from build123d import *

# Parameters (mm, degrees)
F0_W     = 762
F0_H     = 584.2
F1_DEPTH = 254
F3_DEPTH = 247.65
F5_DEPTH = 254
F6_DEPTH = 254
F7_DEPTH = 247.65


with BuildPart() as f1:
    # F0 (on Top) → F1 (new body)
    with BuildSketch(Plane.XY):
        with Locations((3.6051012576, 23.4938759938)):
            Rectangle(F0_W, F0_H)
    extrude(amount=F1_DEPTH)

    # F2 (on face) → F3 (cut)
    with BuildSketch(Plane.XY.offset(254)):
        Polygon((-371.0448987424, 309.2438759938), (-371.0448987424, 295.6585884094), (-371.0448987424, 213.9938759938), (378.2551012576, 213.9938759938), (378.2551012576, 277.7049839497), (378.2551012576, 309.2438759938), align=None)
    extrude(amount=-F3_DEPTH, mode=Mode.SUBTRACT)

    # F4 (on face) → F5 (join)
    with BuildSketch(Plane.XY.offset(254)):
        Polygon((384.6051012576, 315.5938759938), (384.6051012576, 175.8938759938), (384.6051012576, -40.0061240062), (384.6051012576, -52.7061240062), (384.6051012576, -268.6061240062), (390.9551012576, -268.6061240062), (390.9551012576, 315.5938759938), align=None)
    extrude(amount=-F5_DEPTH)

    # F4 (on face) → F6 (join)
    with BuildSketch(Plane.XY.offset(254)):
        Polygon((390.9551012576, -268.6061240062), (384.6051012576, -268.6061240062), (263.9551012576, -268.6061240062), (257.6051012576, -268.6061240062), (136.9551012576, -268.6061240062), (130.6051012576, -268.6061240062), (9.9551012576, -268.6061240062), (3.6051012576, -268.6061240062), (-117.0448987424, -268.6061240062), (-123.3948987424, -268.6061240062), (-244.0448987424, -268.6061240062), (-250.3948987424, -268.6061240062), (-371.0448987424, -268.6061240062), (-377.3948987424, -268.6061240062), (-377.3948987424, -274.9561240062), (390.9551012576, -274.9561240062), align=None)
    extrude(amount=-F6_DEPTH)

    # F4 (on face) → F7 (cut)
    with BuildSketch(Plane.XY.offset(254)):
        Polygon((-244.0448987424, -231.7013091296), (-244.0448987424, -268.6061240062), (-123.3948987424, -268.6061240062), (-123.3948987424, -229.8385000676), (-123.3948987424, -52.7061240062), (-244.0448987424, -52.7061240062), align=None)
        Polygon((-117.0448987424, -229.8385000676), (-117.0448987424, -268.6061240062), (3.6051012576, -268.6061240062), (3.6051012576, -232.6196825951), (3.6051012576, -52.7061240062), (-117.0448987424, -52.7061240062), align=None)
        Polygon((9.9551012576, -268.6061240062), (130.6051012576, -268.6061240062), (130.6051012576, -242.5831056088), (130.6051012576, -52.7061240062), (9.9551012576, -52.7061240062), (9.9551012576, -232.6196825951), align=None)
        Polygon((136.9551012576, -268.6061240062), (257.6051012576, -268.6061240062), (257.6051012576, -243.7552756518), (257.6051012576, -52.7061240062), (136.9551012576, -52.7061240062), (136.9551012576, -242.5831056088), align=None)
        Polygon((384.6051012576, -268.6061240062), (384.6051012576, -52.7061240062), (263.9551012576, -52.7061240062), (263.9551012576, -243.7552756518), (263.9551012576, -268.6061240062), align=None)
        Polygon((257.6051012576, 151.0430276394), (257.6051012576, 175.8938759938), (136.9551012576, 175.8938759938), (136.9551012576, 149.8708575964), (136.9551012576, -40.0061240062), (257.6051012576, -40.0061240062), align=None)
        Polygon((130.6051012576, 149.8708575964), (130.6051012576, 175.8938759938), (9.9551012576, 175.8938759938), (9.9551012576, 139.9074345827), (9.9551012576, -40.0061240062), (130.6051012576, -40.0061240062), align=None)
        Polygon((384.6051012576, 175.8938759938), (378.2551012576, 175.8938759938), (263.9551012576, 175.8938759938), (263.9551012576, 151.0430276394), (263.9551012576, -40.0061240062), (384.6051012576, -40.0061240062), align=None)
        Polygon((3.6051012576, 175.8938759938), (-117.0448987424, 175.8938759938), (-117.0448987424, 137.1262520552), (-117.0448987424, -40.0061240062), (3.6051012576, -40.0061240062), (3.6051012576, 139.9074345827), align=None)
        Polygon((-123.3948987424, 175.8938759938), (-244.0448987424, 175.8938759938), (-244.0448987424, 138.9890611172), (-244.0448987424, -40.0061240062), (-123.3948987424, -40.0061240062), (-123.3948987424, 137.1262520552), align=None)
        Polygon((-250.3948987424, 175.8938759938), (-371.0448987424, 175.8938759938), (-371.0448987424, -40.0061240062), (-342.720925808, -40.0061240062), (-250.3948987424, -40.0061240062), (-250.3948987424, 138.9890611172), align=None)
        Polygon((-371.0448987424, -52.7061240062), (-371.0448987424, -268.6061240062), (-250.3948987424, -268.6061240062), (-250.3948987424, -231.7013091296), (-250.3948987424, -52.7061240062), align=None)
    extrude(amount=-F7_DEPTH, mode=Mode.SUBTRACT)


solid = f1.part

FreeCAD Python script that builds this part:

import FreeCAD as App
import Part
import Sketcher
Q = App.Units.Quantity

doc = App.newDocument("Part")
params = doc.addObject("Spreadsheet::Sheet", "Params")
for row, (alias, value) in enumerate([
    ("sketch1_width", "30 in"),
    ("sketch1_height", "23 in"),
    ("pad1_length", "10 in"),
    ("sketch2_width", "29.5 in"),
    ("sketch2_height", "3.75 in"),
    ("pocket1_length", "9.75 in"),
    ("sketch3_height", "23 in"),
    ("sketch3_width", "0.25 in"),
    ("pad2_length", "10 in"),
    ("sketch4_width", "30.25 in"),
    ("sketch4_height", "0.25 in"),
    ("pad3_length", "10 in"),
    ("sketch5_height", "8.5 in"),
    ("sketch5_width", "4.75 in"),
    ("pocket2_length", "9.75 in"),
], start=1):
    params.set(f"A{row}", alias)
    params.set(f"B{row}", "=" + value)
    params.setAlias(f"B{row}", alias)

body = doc.addObject("PartDesign::Body", "Body")

# Sketch on XY plane
sketch1 = doc.addObject("Sketcher::SketchObject", "Sketch")
body.addObject(sketch1)
sketch1.AttachmentSupport = (doc.XY_Plane, [""])
sketch1.MapMode = "FlatFace"
sketch1.addGeometry([
    Part.LineSegment(App.Vector(-377, 316, 0), App.Vector(-377, -269, 0)),
    Part.LineSegment(App.Vector(-377, -269, 0), App.Vector(385, -269, 0)),
    Part.LineSegment(App.Vector(385, -269, 0), App.Vector(385, 316, 0)),
    Part.LineSegment(App.Vector(385, 316, 0), App.Vector(-377, 316, 0)),
], False)
sketch1.addConstraint([
    Sketcher.Constraint("Coincident", 0, 2, 1, 1),
    Sketcher.Constraint("Coincident", 1, 2, 2, 1),
    Sketcher.Constraint("Coincident", 2, 2, 3, 1),
    Sketcher.Constraint("Coincident", 3, 2, 0, 1),
    Sketcher.Constraint("Vertical", 0),
    Sketcher.Constraint("Horizontal", 1),
    Sketcher.Constraint("Vertical", 2),
    Sketcher.Constraint("Horizontal", 3),
    Sketcher.Constraint("DistanceX", 1, 1, 1, 2, Q("30 in")),
    Sketcher.Constraint("DistanceY", 0, 2, 0, 1, Q("23 in")),
    Sketcher.Constraint("DistanceX", 0, 2, -1, 1, 377.394899),
    Sketcher.Constraint("DistanceY", 0, 2, -1, 1, 268.606124),
])
sketch1.setExpression("Constraints[8]", "Params.sketch1_width")
sketch1.setExpression("Constraints[9]", "Params.sketch1_height")
pad1 = doc.addObject("PartDesign::Pad", "Pad")
body.addObject(pad1)
pad1.Profile = sketch1
pad1.setExpression("Length", "Params.pad1_length")

# Sketch on XY plane
sketch2 = doc.addObject("Sketcher::SketchObject", "Sketch001")
body.addObject(sketch2)
sketch2.AttachmentSupport = (doc.XY_Plane, [""])
sketch2.MapMode = "FlatFace"
sketch2.AttachmentOffset = App.Placement(App.Vector(0, 0, 10 * 25.4), App.Rotation())
sketch2.addGeometry([
    Part.LineSegment(App.Vector(-371, 309, 0), App.Vector(-371, 214, 0)),
    Part.LineSegment(App.Vector(-371, 214, 0), App.Vector(378, 214, 0)),
    Part.LineSegment(App.Vector(378, 214, 0), App.Vector(378, 309, 0)),
    Part.LineSegment(App.Vector(378, 309, 0), App.Vector(-371, 309, 0)),
], False)
sketch2.addConstraint([
    Sketcher.Constraint("Coincident", 0, 2, 1, 1),
    Sketcher.Constraint("Coincident", 1, 2, 2, 1),
    Sketcher.Constraint("Coincident", 2, 2, 3, 1),
    Sketcher.Constraint("Coincident", 3, 2, 0, 1),
    Sketcher.Constraint("Vertical", 0),
    Sketcher.Constraint("Horizontal", 1),
    Sketcher.Constraint("Vertical", 2),
    Sketcher.Constraint("Horizontal", 3),
    Sketcher.Constraint("DistanceX", 1, 1, 1, 2, Q("29.5 in")),
    Sketcher.Constraint("DistanceY", 0, 2, 0, 1, Q("3.75 in")),
    Sketcher.Constraint("DistanceX", 0, 2, -1, 1, 371.044899),
    Sketcher.Constraint("DistanceY", -1, 1, 0, 2, 213.993876),
])
sketch2.setExpression("Constraints[8]", "Params.sketch2_width")
sketch2.setExpression("Constraints[9]", "Params.sketch2_height")
pocket1 = doc.addObject("PartDesign::Pocket", "Pocket")
body.addObject(pocket1)
pocket1.Profile = sketch2
pocket1.setExpression("Length", "Params.pocket1_length")

# Sketch on XY plane
sketch3 = doc.addObject("Sketcher::SketchObject", "Sketch002")
body.addObject(sketch3)
sketch3.AttachmentSupport = (doc.XY_Plane, [""])
sketch3.MapMode = "FlatFace"
sketch3.AttachmentOffset = App.Placement(App.Vector(0, 0, 10 * 25.4), App.Rotation())
sketch3.addGeometry([
    Part.LineSegment(App.Vector(385, 316, 0), App.Vector(385, -269, 0)),
    Part.LineSegment(App.Vector(385, -269, 0), App.Vector(391, -269, 0)),
    Part.LineSegment(App.Vector(391, -269, 0), App.Vector(391, 316, 0)),
    Part.LineSegment(App.Vector(391, 316, 0), App.Vector(385, 316, 0)),
], False)
sketch3.addConstraint([
    Sketcher.Constraint("Coincident", 0, 2, 1, 1),
    Sketcher.Constraint("Coincident", 1, 2, 2, 1),
    Sketcher.Constraint("Coincident", 2, 2, 3, 1),
    Sketcher.Constraint("Coincident", 3, 2, 0, 1),
    Sketcher.Constraint("Vertical", 0),
    Sketcher.Constraint("Horizontal", 1),
    Sketcher.Constraint("Vertical", 2),
    Sketcher.Constraint("Horizontal", 3),
    Sketcher.Constraint("DistanceY", 0, 2, 0, 1, Q("23 in")),
    Sketcher.Constraint("DistanceX", 1, 1, 1, 2, Q("0.25 in")),
    Sketcher.Constraint("DistanceX", -1, 1, 0, 2, 384.605101),
    Sketcher.Constraint("DistanceY", 0, 2, -1, 1, 268.606124),
])
sketch3.setExpression("Constraints[8]", "Params.sketch3_height")
sketch3.setExpression("Constraints[9]", "Params.sketch3_width")
pad2 = doc.addObject("PartDesign::Pad", "Pad001")
body.addObject(pad2)
pad2.Profile = sketch3
pad2.setExpression("Length", "Params.pad2_length")
pad2.Reversed = True

# Sketch on XY plane
sketch4 = doc.addObject("Sketcher::SketchObject", "Sketch003")
body.addObject(sketch4)
sketch4.AttachmentSupport = (doc.XY_Plane, [""])
sketch4.MapMode = "FlatFace"
sketch4.AttachmentOffset = App.Placement(App.Vector(0, 0, 10 * 25.4), App.Rotation())
sketch4.addGeometry([
    Part.LineSegment(App.Vector(391, -269, 0), App.Vector(-377, -269, 0)),
    Part.LineSegment(App.Vector(-377, -269, 0), App.Vector(-377, -275, 0)),
    Part.LineSegment(App.Vector(-377, -275, 0), App.Vector(391, -275, 0)),
    Part.LineSegment(App.Vector(391, -275, 0), App.Vector(391, -269, 0)),
], False)
sketch4.addConstraint([
    Sketcher.Constraint("Coincident", 0, 2, 1, 1),
    Sketcher.Constraint("Coincident", 1, 2, 2, 1),
    Sketcher.Constraint("Coincident", 2, 2, 3, 1),
    Sketcher.Constraint("Coincident", 3, 2, 0, 1),
    Sketcher.Constraint("Horizontal", 0),
    Sketcher.Constraint("Vertical", 1),
    Sketcher.Constraint("Horizontal", 2),
    Sketcher.Constraint("Vertical", 3),
    Sketcher.Constraint("DistanceX", 0, 2, 0, 1, Q("30.25 in")),
    Sketcher.Constraint("DistanceY", 1, 2, 1, 1, Q("0.25 in")),
    Sketcher.Constraint("DistanceX", 0, 2, -1, 1, 377.394899),
    Sketcher.Constraint("DistanceY", 0, 2, -1, 1, 268.606124),
])
sketch4.setExpression("Constraints[8]", "Params.sketch4_width")
sketch4.setExpression("Constraints[9]", "Params.sketch4_height")
pad3 = doc.addObject("PartDesign::Pad", "Pad002")
body.addObject(pad3)
pad3.Profile = sketch4
pad3.setExpression("Length", "Params.pad3_length")
pad3.Reversed = True

# Sketch on XY plane
sketch5 = doc.addObject("Sketcher::SketchObject", "Sketch004")
body.addObject(sketch5)
sketch5.AttachmentSupport = (doc.XY_Plane, [""])
sketch5.MapMode = "FlatFace"
sketch5.AttachmentOffset = App.Placement(App.Vector(0, 0, 10 * 25.4), App.Rotation())
sketch5.addGeometry([
    Part.LineSegment(App.Vector(-244, -269, 0), App.Vector(-123, -269, 0)),  # 0
    Part.LineSegment(App.Vector(-123, -269, 0), App.Vector(-123, -53, 0)),  # 1
    Part.LineSegment(App.Vector(-123, -53, 0), App.Vector(-244, -53, 0)),  # 2
    Part.LineSegment(App.Vector(-244, -53, 0), App.Vector(-244, -269, 0)),  # 3
    Part.LineSegment(App.Vector(-117, -269, 0), App.Vector(4, -269, 0)),  # 4
    Part.LineSegment(App.Vector(4, -269, 0), App.Vector(4, -53, 0)),  # 5
    Part.LineSegment(App.Vector(4, -53, 0), App.Vector(-117, -53, 0)),  # 6
    Part.LineSegment(App.Vector(-117, -53, 0), App.Vector(-117, -269, 0)),  # 7
    Part.LineSegment(App.Vector(10, -269, 0), App.Vector(131, -269, 0)),  # 8
    Part.LineSegment(App.Vector(131, -269, 0), App.Vector(131, -53, 0)),  # 9
    Part.LineSegment(App.Vector(131, -53, 0), App.Vector(10, -53, 0)),  # 10
    Part.LineSegment(App.Vector(10, -53, 0), App.Vector(10, -269, 0)),  # 11
    Part.LineSegment(App.Vector(137, -269, 0), App.Vector(258, -269, 0)),  # 12
    Part.LineSegment(App.Vector(258, -269, 0), App.Vector(258, -53, 0)),  # 13
    Part.LineSegment(App.Vector(258, -53, 0), App.Vector(137, -53, 0)),  # 14
    Part.LineSegment(App.Vector(137, -53, 0), App.Vector(137, -269, 0)),  # 15
    Part.LineSegment(App.Vector(385, -269, 0), App.Vector(385, -53, 0)),  # 16
    Part.LineSegment(App.Vector(385, -53, 0), App.Vector(264, -53, 0)),  # 17
    Part.LineSegment(App.Vector(264, -53, 0), App.Vector(264, -269, 0)),  # 18
    Part.LineSegment(App.Vector(264, -269, 0), App.Vector(385, -269, 0)),  # 19
    Part.LineSegment(App.Vector(258, 176, 0), App.Vector(137, 176, 0)),  # 20
    Part.LineSegment(App.Vector(137, 176, 0), App.Vector(137, -40, 0)),  # 21
    Part.LineSegment(App.Vector(137, -40, 0), App.Vector(258, -40, 0)),  # 22
    Part.LineSegment(App.Vector(258, -40, 0), App.Vector(258, 176, 0)),  # 23
    Part.LineSegment(App.Vector(131, 176, 0), App.Vector(10, 176, 0)),  # 24
    Part.LineSegment(App.Vector(10, 176, 0), App.Vector(10, -40, 0)),  # 25
    Part.LineSegment(App.Vector(10, -40, 0), App.Vector(131, -40, 0)),  # 26
    Part.LineSegment(App.Vector(131, -40, 0), App.Vector(131, 176, 0)),  # 27
    Part.LineSegment(App.Vector(385, 176, 0), App.Vector(264, 176, 0)),  # 28
    Part.LineSegment(App.Vector(264, 176, 0), App.Vector(264, -40, 0)),  # 29
    Part.LineSegment(App.Vector(264, -40, 0), App.Vector(385, -40, 0)),  # 30
    Part.LineSegment(App.Vector(385, -40, 0), App.Vector(385, 176, 0)),  # 31
    Part.LineSegment(App.Vector(4, 176, 0), App.Vector(-117, 176, 0)),  # 32
    Part.LineSegment(App.Vector(-117, 176, 0), App.Vector(-117, -40, 0)),  # 33
    Part.LineSegment(App.Vector(-117, -40, 0), App.Vector(4, -40, 0)),  # 34
    Part.LineSegment(App.Vector(4, -40, 0), App.Vector(4, 176, 0)),  # 35
    Part.LineSegment(App.Vector(-123, 176, 0), App.Vector(-244, 176, 0)),  # 36
    Part.LineSegment(App.Vector(-244, 176, 0), App.Vector(-244, -40, 0)),  # 37
    Part.LineSegment(App.Vector(-244, -40, 0), App.Vector(-123, -40, 0)),  # 38
    Part.LineSegment(App.Vector(-123, -40, 0), App.Vector(-123, 176, 0)),  # 39
    Part.LineSegment(App.Vector(-250, 176, 0), App.Vector(-371, 176, 0)),  # 40
    Part.LineSegment(App.Vector(-371, 176, 0), App.Vector(-371, -40, 0)),  # 41
    Part.LineSegment(App.Vector(-371, -40, 0), App.Vector(-250, -40, 0)),  # 42
    Part.LineSegment(App.Vector(-250, -40, 0), App.Vector(-250, 176, 0)),  # 43
    Part.LineSegment(App.Vector(-371, -53, 0), App.Vector(-371, -269, 0)),  # 44
    Part.LineSegment(App.Vector(-371, -269, 0), App.Vector(-250, -269, 0)),  # 45
    Part.LineSegment(App.Vector(-250, -269, 0), App.Vector(-250, -53, 0)),  # 46
    Part.LineSegment(App.Vector(-250, -53, 0), App.Vector(-371, -53, 0)),  # 47
], False)
sketch5.addConstraint([
    Sketcher.Constraint("Coincident", 0, 2, 1, 1),
    Sketcher.Constraint("Coincident", 1, 2, 2, 1),
    Sketcher.Constraint("Coincident", 2, 2, 3, 1),
    Sketcher.Constraint("Coincident", 3, 2, 0, 1),
    Sketcher.Constraint("Coincident", 4, 2, 5, 1),
    Sketcher.Constraint("Coincident", 5, 2, 6, 1),
    Sketcher.Constraint("Coincident", 6, 2, 7, 1),
    Sketcher.Constraint("Coincident", 7, 2, 4, 1),
    Sketcher.Constraint("Coincident", 8, 2, 9, 1),
    Sketcher.Constraint("Coincident", 9, 2, 10, 1),
    Sketcher.Constraint("Coincident", 10, 2, 11, 1),
    Sketcher.Constraint("Coincident", 11, 2, 8, 1),
    Sketcher.Constraint("Coincident", 12, 2, 13, 1),
    Sketcher.Constraint("Coincident", 13, 2, 14, 1),
    Sketcher.Constraint("Coincident", 14, 2, 15, 1),
    Sketcher.Constraint("Coincident", 15, 2, 12, 1),
    Sketcher.Constraint("Coincident", 16, 2, 17, 1),
    Sketcher.Constraint("Coincident", 17, 2, 18, 1),
    Sketcher.Constraint("Coincident", 18, 2, 19, 1),
    Sketcher.Constraint("Coincident", 19, 2, 16, 1),
    Sketcher.Constraint("Coincident", 20, 2, 21, 1),
    Sketcher.Constraint("Coincident", 21, 2, 22, 1),
    Sketcher.Constraint("Coincident", 22, 2, 23, 1),
    Sketcher.Constraint("Coincident", 23, 2, 20, 1),
    Sketcher.Constraint("Coincident", 24, 2, 25, 1),
    Sketcher.Constraint("Coincident", 25, 2, 26, 1),
    Sketcher.Constraint("Coincident", 26, 2, 27, 1),
    Sketcher.Constraint("Coincident", 27, 2, 24, 1),
    Sketcher.Constraint("Coincident", 28, 2, 29, 1),
    Sketcher.Constraint("Coincident", 29, 2, 30, 1),
    Sketcher.Constraint("Coincident", 30, 2, 31, 1),
    Sketcher.Constraint("Coincident", 31, 2, 28, 1),
    Sketcher.Constraint("Coincident", 32, 2, 33, 1),
    Sketcher.Constraint("Coincident", 33, 2, 34, 1),
    Sketcher.Constraint("Coincident", 34, 2, 35, 1),
    Sketcher.Constraint("Coincident", 35, 2, 32, 1),
    Sketcher.Constraint("Coincident", 36, 2, 37, 1),
    Sketcher.Constraint("Coincident", 37, 2, 38, 1),
    Sketcher.Constraint("Coincident", 38, 2, 39, 1),
    Sketcher.Constraint("Coincident", 39, 2, 36, 1),
    Sketcher.Constraint("Coincident", 40, 2, 41, 1),
    Sketcher.Constraint("Coincident", 41, 2, 42, 1),
    Sketcher.Constraint("Coincident", 42, 2, 43, 1),
    Sketcher.Constraint("Coincident", 43, 2, 40, 1),
    Sketcher.Constraint("Coincident", 44, 2, 45, 1),
    Sketcher.Constraint("Coincident", 45, 2, 46, 1),
    Sketcher.Constraint("Coincident", 46, 2, 47, 1),
    Sketcher.Constraint("Coincident", 47, 2, 44, 1),
    Sketcher.Constraint("Horizontal", 0),
    Sketcher.Constraint("Vertical", 1),
    Sketcher.Constraint("Horizontal", 2),
    Sketcher.Constraint("Vertical", 3),
    Sketcher.Constraint("Horizontal", 4),
    Sketcher.Constraint("Vertical", 5),
    Sketcher.Constraint("Horizontal", 6),
    Sketcher.Constraint("Vertical", 7),
    Sketcher.Constraint("Horizontal", 8),
    Sketcher.Constraint("Vertical", 9),
    Sketcher.Constraint("Horizontal", 10),
    Sketcher.Constraint("Vertical", 11),
    Sketcher.Constraint("Horizontal", 12),
    Sketcher.Constraint("Vertical", 13),
    Sketcher.Constraint("Horizontal", 14),
    Sketcher.Constraint("Vertical", 15),
    Sketcher.Constraint("Vertical", 16),
    Sketcher.Constraint("Horizontal", 17),
    Sketcher.Constraint("Vertical", 18),
    Sketcher.Constraint("Horizontal", 19),
    Sketcher.Constraint("Horizontal", 20),
    Sketcher.Constraint("Vertical", 21),
    Sketcher.Constraint("Horizontal", 22),
    Sketcher.Constraint("Vertical", 23),
    Sketcher.Constraint("Horizontal", 24),
    Sketcher.Constraint("Vertical", 25),
    Sketcher.Constraint("Horizontal", 26),
    Sketcher.Constraint("Vertical", 27),
    Sketcher.Constraint("Horizontal", 28),
    Sketcher.Constraint("Vertical", 29),
    Sketcher.Constraint("Horizontal", 30),
    Sketcher.Constraint("Vertical", 31),
    Sketcher.Constraint("Horizontal", 32),
    Sketcher.Constraint("Vertical", 33),
    Sketcher.Constraint("Horizontal", 34),
    Sketcher.Constraint("Vertical", 35),
    Sketcher.Constraint("Horizontal", 36),
    Sketcher.Constraint("Vertical", 37),
    Sketcher.Constraint("Horizontal", 38),
    Sketcher.Constraint("Vertical", 39),
    Sketcher.Constraint("Horizontal", 40),
    Sketcher.Constraint("Vertical", 41),
    Sketcher.Constraint("Horizontal", 42),
    Sketcher.Constraint("Vertical", 43),
    Sketcher.Constraint("Vertical", 44),
    Sketcher.Constraint("Horizontal", 45),
    Sketcher.Constraint("Vertical", 46),
    Sketcher.Constraint("Horizontal", 47),
    Sketcher.Constraint("Horizontal", 3, 2, 4, 2),
    Sketcher.Constraint("Horizontal", 2, 2, 5, 2),
    Sketcher.Constraint("Horizontal", 7, 2, 8, 2),
    Sketcher.Constraint("Horizontal", 6, 2, 9, 2),
    Sketcher.Constraint("Horizontal", 11, 2, 12, 2),
    Sketcher.Constraint("Horizontal", 10, 2, 13, 2),
    Sketcher.Constraint("Horizontal", 14, 2, 16, 2),
    Sketcher.Constraint("Horizontal", 15, 2, 18, 2),
    Sketcher.Constraint("Horizontal", 23, 2, 24, 2),
    Sketcher.Constraint("Horizontal", 22, 2, 25, 2),
    Sketcher.Constraint("Horizontal", 27, 2, 28, 2),
    Sketcher.Constraint("Horizontal", 26, 2, 29, 2),
    Sketcher.Constraint("Horizontal", 31, 2, 32, 2),
    Sketcher.Constraint("Horizontal", 30, 2, 33, 2),
    Sketcher.Constraint("Horizontal", 35, 2, 36, 2),
    Sketcher.Constraint("Horizontal", 34, 2, 37, 2),
    Sketcher.Constraint("Horizontal", 39, 2, 40, 2),
    Sketcher.Constraint("Horizontal", 38, 2, 41, 2),
    Sketcher.Constraint("Horizontal", 19, 2, 44, 2),
    Sketcher.Constraint("Horizontal", 17, 2, 46, 2),
    Sketcher.Constraint("Vertical", 15, 2, 20, 2),
    Sketcher.Constraint("Vertical", 13, 2, 22, 2),
    Sketcher.Constraint("Vertical", 11, 2, 24, 2),
    Sketcher.Constraint("Vertical", 9, 2, 26, 2),
    Sketcher.Constraint("Vertical", 18, 2, 28, 2),
    Sketcher.Constraint("Vertical", 19, 2, 30, 2),
    Sketcher.Constraint("Vertical", 7, 2, 32, 2),
    Sketcher.Constraint("Vertical", 5, 2, 34, 2),
    Sketcher.Constraint("Vertical", 3, 2, 36, 2),
    Sketcher.Constraint("Vertical", 1, 2, 38, 2),
    Sketcher.Constraint("Vertical", 41, 2, 44, 2),
    Sketcher.Constraint("Vertical", 43, 2, 45, 2),
    Sketcher.Constraint("Equal", 2, 4),
    Sketcher.Constraint("Equal", 6, 8),
    Sketcher.Constraint("Equal", 10, 12),
    Sketcher.Constraint("Equal", 14, 17),
    Sketcher.Constraint("Equal", 38, 40),
    Sketcher.Constraint("Equal", 18, 21),
    Sketcher.Constraint("DistanceY", 1, 1, 1, 2, Q("8.5 in")),
    Sketcher.Constraint("DistanceX", 0, 2, 4, 2, Q("5 in")),
    Sketcher.Constraint("DistanceX", 4, 2, 8, 2, Q("5 in")),
    Sketcher.Constraint("DistanceX", 8, 2, 12, 2, Q("5 in")),
    Sketcher.Constraint("DistanceX", 13, 2, 16, 2, Q("5 in")),
    Sketcher.Constraint("DistanceY", 14, 2, 20, 2, Q("9 in")),
    Sketcher.Constraint("DistanceX", 40, 2, 36, 2, Q("5 in")),
    Sketcher.Constraint("DistanceX", 0, 1, 0, 2, Q("4.75 in")),
    Sketcher.Constraint("DistanceX", 0, 2, -1, 1, 123.394899),
    Sketcher.Constraint("DistanceY", 0, 2, -1, 1, 268.606124),
])
sketch5.setExpression("Constraints[134]", "Params.sketch5_height")
sketch5.setExpression("Constraints[141]", "Params.sketch5_width")
pocket2 = doc.addObject("PartDesign::Pocket", "Pocket001")
body.addObject(pocket2)
pocket2.Profile = sketch5
pocket2.setExpression("Length", "Params.pocket2_length")

doc.recompute()
